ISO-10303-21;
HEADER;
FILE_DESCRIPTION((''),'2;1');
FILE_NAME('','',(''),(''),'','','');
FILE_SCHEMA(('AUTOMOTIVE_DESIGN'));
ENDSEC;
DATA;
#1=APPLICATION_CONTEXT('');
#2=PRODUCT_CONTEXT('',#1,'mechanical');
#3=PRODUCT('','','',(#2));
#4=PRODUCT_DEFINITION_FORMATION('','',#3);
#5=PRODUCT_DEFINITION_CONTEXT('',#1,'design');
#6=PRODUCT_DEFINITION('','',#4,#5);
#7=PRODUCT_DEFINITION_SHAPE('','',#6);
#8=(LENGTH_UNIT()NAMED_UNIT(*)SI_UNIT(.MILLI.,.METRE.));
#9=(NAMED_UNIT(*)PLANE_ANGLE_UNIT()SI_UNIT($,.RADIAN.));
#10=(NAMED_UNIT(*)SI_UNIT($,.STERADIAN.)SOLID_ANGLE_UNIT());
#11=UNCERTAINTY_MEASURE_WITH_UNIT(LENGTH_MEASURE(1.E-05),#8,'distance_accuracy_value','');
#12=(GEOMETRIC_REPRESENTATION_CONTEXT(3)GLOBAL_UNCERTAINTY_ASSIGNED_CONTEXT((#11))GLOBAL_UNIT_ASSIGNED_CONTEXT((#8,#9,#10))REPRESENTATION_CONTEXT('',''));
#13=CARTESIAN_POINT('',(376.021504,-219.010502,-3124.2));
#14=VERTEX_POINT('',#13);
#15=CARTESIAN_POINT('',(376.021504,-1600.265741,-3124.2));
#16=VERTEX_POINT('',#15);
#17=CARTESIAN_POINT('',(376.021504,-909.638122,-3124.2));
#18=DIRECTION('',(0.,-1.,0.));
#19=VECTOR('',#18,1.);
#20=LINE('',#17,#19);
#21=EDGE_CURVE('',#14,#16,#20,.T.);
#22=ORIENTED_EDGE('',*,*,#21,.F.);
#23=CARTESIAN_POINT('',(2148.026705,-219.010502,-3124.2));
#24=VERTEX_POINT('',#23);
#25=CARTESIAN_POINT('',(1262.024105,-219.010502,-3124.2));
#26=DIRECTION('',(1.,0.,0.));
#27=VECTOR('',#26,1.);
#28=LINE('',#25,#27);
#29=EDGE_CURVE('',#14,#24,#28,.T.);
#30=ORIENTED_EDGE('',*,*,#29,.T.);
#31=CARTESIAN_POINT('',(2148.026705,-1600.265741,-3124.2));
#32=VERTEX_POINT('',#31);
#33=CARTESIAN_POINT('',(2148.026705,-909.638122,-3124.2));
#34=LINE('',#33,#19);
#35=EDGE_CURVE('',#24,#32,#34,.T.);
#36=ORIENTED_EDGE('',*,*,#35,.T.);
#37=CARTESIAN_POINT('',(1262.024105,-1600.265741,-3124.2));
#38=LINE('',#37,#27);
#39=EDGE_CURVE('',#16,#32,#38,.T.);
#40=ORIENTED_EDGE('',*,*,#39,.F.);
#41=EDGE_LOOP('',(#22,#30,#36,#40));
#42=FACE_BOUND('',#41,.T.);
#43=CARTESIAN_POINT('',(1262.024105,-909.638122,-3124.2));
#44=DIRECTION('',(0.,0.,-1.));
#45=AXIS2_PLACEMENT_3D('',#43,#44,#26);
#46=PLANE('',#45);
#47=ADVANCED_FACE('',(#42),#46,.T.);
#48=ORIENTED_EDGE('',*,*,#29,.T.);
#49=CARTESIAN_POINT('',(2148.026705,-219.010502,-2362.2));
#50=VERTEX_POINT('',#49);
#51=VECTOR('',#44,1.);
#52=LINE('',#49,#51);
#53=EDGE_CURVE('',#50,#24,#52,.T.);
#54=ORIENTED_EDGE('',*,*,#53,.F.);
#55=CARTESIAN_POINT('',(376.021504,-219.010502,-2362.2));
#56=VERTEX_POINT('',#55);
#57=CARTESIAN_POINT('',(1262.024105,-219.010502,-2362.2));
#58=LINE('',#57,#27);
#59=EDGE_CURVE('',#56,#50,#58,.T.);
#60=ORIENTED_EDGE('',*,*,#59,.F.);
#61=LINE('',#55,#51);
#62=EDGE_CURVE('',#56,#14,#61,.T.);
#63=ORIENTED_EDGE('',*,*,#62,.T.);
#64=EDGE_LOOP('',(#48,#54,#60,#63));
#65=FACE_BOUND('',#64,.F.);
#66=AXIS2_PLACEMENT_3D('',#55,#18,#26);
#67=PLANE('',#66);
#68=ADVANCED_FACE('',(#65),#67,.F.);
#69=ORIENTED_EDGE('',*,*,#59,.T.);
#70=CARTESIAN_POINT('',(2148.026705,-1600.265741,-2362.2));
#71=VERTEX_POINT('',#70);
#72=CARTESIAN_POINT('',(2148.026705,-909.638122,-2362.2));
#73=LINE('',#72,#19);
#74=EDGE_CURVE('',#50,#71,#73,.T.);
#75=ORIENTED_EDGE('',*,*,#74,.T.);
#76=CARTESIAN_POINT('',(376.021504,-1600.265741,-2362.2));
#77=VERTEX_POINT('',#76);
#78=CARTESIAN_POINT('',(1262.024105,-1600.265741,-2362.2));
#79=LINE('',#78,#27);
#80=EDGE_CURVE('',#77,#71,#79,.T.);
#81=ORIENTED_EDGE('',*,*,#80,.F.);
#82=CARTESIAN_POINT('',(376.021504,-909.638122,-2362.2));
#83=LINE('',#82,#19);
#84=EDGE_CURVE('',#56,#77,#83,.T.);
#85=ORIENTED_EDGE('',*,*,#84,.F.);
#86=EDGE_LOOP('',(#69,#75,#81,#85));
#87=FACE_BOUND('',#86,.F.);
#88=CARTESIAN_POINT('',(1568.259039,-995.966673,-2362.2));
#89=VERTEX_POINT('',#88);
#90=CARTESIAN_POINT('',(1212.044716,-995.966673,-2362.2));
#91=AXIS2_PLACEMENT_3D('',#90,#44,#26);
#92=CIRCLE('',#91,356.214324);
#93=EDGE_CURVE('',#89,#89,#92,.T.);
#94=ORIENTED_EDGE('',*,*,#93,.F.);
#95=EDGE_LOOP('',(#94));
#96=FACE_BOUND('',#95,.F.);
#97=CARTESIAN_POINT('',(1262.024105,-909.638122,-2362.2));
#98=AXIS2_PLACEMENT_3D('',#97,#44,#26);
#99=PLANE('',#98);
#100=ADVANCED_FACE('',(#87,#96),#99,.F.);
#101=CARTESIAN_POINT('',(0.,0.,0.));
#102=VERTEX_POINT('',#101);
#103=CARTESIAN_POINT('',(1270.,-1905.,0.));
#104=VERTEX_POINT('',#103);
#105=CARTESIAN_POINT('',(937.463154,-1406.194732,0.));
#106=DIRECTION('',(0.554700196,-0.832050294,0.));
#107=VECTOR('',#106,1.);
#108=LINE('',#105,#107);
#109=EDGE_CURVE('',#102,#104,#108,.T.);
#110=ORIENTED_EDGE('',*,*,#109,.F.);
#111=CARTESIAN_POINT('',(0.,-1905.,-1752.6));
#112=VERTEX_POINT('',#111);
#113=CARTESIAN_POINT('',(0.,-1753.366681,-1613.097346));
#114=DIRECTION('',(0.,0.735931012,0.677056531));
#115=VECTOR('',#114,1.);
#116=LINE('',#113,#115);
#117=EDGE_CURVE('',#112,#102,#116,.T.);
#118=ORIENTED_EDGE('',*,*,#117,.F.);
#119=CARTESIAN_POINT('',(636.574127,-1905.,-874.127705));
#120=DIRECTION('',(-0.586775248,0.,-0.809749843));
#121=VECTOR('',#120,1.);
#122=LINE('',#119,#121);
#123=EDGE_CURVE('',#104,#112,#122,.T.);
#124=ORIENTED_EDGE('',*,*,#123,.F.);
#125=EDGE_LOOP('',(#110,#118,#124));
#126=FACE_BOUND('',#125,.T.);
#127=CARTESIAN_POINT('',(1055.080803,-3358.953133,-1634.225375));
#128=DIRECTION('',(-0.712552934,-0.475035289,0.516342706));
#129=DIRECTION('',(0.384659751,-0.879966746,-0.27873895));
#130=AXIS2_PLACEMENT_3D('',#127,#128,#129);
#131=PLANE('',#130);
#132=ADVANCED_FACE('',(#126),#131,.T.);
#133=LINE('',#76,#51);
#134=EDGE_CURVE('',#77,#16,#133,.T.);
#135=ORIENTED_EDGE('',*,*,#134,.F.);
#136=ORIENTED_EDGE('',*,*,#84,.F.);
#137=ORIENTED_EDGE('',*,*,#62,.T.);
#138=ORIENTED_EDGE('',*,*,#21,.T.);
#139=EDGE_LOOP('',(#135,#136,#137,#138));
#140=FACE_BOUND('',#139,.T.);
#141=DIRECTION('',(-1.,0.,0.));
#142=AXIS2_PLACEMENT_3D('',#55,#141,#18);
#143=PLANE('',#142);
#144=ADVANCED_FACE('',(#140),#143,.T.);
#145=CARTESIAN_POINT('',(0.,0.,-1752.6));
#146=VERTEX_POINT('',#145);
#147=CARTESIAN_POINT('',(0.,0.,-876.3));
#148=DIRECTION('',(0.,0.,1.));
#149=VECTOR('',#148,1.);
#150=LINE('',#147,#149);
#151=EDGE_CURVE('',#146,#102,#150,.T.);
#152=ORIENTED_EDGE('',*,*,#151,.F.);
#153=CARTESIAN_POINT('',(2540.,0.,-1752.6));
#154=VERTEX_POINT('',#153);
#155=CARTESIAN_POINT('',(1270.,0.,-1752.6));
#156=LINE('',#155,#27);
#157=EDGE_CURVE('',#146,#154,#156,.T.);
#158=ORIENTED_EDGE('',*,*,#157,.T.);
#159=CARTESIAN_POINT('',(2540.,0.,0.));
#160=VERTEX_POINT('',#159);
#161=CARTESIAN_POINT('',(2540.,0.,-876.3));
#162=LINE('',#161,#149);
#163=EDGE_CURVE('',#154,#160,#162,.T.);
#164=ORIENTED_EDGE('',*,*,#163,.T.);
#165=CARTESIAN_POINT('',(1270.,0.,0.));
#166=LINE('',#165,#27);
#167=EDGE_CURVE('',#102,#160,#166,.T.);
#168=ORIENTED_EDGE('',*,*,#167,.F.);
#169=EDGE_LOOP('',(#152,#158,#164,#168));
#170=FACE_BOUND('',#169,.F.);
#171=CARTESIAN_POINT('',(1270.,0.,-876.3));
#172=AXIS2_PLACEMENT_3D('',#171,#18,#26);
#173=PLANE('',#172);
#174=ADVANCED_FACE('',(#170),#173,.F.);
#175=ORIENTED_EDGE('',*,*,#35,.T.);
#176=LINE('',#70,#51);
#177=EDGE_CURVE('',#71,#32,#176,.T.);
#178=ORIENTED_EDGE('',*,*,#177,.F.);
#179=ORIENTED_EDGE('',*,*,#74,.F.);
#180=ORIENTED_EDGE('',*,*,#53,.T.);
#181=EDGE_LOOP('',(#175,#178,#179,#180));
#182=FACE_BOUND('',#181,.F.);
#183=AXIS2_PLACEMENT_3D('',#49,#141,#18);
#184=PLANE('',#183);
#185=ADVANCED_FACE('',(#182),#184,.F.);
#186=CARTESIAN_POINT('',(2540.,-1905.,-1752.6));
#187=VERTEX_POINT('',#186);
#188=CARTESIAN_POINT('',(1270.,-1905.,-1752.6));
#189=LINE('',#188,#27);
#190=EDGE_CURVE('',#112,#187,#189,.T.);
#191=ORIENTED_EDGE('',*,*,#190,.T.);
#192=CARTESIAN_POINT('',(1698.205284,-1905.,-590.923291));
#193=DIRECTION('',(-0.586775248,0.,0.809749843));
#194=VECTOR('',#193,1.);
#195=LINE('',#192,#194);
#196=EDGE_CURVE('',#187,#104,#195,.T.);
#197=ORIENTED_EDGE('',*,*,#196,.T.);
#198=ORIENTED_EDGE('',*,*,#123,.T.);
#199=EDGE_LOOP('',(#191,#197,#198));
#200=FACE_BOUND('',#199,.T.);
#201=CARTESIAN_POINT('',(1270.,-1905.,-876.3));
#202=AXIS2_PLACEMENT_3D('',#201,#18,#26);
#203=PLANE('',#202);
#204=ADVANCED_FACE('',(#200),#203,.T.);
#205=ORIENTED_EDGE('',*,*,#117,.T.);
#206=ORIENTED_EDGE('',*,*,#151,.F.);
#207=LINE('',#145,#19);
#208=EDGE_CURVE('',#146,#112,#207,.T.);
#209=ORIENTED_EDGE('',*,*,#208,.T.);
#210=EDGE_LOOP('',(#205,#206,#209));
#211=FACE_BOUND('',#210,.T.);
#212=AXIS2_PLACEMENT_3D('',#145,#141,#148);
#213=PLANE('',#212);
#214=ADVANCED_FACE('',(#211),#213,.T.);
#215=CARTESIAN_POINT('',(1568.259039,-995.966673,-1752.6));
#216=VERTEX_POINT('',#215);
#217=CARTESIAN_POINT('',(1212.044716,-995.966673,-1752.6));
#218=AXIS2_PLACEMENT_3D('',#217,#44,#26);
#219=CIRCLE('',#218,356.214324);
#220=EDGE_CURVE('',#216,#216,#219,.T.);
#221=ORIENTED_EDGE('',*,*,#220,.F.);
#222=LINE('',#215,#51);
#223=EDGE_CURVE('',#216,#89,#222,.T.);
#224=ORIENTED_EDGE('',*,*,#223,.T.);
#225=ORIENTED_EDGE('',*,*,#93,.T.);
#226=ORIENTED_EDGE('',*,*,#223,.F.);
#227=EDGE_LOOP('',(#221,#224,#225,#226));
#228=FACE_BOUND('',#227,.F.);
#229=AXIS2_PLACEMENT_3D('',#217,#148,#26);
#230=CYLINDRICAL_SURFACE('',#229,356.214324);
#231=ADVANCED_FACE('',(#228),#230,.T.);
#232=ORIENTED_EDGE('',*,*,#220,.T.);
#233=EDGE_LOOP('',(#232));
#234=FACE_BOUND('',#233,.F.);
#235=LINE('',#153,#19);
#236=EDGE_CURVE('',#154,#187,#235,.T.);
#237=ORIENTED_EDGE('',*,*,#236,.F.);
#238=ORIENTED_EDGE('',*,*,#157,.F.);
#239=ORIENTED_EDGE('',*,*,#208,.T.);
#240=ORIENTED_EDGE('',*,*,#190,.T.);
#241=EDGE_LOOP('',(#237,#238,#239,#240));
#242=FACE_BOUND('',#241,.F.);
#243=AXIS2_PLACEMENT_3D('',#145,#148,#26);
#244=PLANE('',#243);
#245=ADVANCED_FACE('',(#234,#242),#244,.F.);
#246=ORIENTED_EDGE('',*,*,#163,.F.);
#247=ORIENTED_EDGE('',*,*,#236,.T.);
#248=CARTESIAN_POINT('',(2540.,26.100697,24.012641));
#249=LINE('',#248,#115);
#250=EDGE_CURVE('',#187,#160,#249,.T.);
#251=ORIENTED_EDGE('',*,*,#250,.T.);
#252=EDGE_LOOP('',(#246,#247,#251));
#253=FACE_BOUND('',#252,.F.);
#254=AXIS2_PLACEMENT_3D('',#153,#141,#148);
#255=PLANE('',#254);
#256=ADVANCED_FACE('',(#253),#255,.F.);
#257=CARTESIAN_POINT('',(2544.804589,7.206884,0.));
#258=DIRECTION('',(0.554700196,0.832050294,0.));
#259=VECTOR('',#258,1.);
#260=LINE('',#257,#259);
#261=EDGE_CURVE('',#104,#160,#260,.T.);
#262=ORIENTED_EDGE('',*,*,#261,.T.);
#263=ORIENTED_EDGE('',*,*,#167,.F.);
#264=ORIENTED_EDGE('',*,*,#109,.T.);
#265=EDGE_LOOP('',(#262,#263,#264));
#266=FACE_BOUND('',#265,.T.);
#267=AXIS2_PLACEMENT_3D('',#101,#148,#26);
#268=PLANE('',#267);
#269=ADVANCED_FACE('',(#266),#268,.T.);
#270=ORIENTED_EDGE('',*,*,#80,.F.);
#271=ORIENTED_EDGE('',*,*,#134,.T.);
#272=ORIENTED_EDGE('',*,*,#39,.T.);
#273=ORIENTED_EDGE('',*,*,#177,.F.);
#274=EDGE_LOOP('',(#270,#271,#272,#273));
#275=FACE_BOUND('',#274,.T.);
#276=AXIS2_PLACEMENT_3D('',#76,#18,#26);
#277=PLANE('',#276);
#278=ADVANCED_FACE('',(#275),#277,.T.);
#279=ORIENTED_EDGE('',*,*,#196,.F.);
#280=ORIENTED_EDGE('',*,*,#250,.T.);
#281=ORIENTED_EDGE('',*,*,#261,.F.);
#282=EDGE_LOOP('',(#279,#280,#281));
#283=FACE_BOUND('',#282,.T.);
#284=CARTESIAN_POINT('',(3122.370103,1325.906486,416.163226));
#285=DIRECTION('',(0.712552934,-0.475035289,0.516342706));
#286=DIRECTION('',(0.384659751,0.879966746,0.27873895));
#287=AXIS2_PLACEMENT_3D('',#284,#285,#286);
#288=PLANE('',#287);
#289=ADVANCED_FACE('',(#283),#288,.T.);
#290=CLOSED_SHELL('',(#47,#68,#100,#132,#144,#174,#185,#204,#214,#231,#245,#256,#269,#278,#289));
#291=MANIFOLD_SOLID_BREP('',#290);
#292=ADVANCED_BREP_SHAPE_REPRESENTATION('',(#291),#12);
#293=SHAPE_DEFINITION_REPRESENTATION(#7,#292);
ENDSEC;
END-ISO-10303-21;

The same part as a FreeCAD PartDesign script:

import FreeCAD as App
import Part
import Sketcher
from FreeCAD import Vector
Q = App.Units.Quantity


def add_polygon(sketch, points):
    """Adds a closed chain of lines whose ends are joined by coincident constraints."""
    first, n = sketch.GeometryCount, len(points)
    for a, b in zip(points, points[1:] + points[:1]):
        sketch.addGeometry(Part.LineSegment(App.Vector(*a, 0), App.Vector(*b, 0)), False)
    for i in range(n):
        sketch.addConstraint(Sketcher.Constraint("Coincident", first + i, 2, first + (i + 1) % n, 1))

doc = App.newDocument("Part")
body = doc.addObject("PartDesign::Body", "Body")

sketch1 = body.newObject("Sketcher::SketchObject", "Sketch")
sketch1.AttachmentSupport = (doc.getObject("XZ_Plane"), [""])
sketch1.MapMode = "FlatFace"
add_polygon(sketch1, [(0, 0), (0, -1752.6), (2540, -1752.6), (2540, 0)])
sketch1.addConstraint(Sketcher.Constraint("Vertical", 0))
sketch1.addConstraint(Sketcher.Constraint("Horizontal", 1))
sketch1.addConstraint(Sketcher.Constraint("Vertical", 2))
sketch1.addConstraint(Sketcher.Constraint("Horizontal", 3))
sketch1.addConstraint(Sketcher.Constraint("Coincident", 3, 2, -1, 1))
sketch1.addConstraint(Sketcher.Constraint("DistanceX", 1, 1, 1, 2, Q("100 in")))
sketch1.addConstraint(Sketcher.Constraint("DistanceY", 0, 2, 0, 1, Q("69 in")))
pad1 = body.newObject("PartDesign::Pad", "Pad")
pad1.Profile = sketch1
pad1.Length = Q("75 in")

sketch2 = body.newObject("Sketcher::SketchObject", "Sketch001")
sketch2.Placement = App.Placement(Vector(1289.638477, -859.758985, 934.520636), App.Rotation(Vector(0.384659751, 0.879966746, 0.27873895), Vector(-0.586775248, 0, 0.809749843), Vector(0.712552934, -0.475035289, 0.516342706), "ZXY"))
add_polygon(sketch2, [(3353.716851, 2692.031622), (-3737.085105, 250.38138), (-2471.13514, -4877.214431), (9797.296528, -2905.452967)])
sketch2.addConstraint(Sketcher.Constraint("Distance", 0, 7499.408529))
sketch2.addConstraint(Sketcher.Constraint("Distance", 1, 5281.559251))
sketch2.addConstraint(Sketcher.Constraint("DistanceY", -1, 1, 0, 2, 250.38138))
sketch2.addConstraint(Sketcher.Constraint("DistanceX", 1, 2, -1, 1, 2471.13514))
sketch2.addConstraint(Sketcher.Constraint("DistanceY", 1, 2, -1, 1, 4877.214431))
sketch2.addConstraint(Sketcher.Constraint("DistanceX", -1, 1, 3, 2, 3353.716851))
sketch2.addConstraint(Sketcher.Constraint("DistanceY", 2, 2, 3, 2, 5597.484588))
sketch2.addConstraint(Sketcher.Constraint("Distance", 2, 12425.870547))
pocket1 = body.newObject("PartDesign::Pocket", "Pocket")
pocket1.Profile = sketch2
pocket1.Length = Q("100 in")
pocket1.Reversed = True

sketch3 = body.newObject("Sketcher::SketchObject", "Sketch002")
sketch3.Placement = App.Placement(Vector(0, 0, 0), App.Rotation(Vector(0.384659751, -0.879966746, -0.27873895), Vector(0.586775248, 0, 0.809749843), Vector(-0.712552934, -0.475035289, 0.516342706), "ZXY"))
add_polygon(sketch3, [(6334.898951, 2345.296383), (-1106.892944, 0), (464.375049, -2554.35276), (8031.702998, -2892.791986)])
sketch3.addConstraint(Sketcher.Constraint("PointOnObject", 0, 2, -1))
sketch3.addConstraint(Sketcher.Constraint("DistanceX", -1, 1, 2, 2, 8031.702998))
sketch3.addConstraint(Sketcher.Constraint("DistanceX", 1, 2, 3, 2, 5870.523902))
sketch3.addConstraint(Sketcher.Constraint("Distance", 1, 2998.933332))
sketch3.addConstraint(Sketcher.Constraint("DistanceX", -1, 1, 1, 2, 464.375049))
sketch3.addConstraint(Sketcher.Constraint("DistanceY", 1, 2, -1, 1, 2554.35276))
sketch3.addConstraint(Sketcher.Constraint("DistanceY", 2, 2, 3, 2, 5238.088369))
sketch3.addConstraint(Sketcher.Constraint("Distance", 0, 7802.607367))
pocket2 = body.newObject("PartDesign::Pocket", "Pocket001")
pocket2.Profile = sketch3
pocket2.Length = Q("100 in")
pocket2.Reversed = True

sketch4 = body.newObject("Sketcher::SketchObject", "Sketch003")
sketch4.AttachmentSupport = (doc.getObject("XY_Plane"), [""])
sketch4.MapMode = "FlatFace"
sketch4.AttachmentOffset = App.Placement(Vector(0, 0, -69 * 25.4), App.Rotation())
sketch4.addGeometry(Part.Circle(Vector(1212.044716, -995.966673, 0), Vector(0, 0, 1), 356.214324), False)
sketch4.addConstraint(Sketcher.Constraint("Diameter", 0, 712.428647))
sketch4.addConstraint(Sketcher.Constraint("DistanceX", -1, 1, 0, 3, 1212.044716))
sketch4.addConstraint(Sketcher.Constraint("DistanceY", 0, 3, -1, 1, 995.966673))
pad2 = body.newObject("PartDesign::Pad", "Pad001")
pad2.Profile = sketch4
pad2.Length = Q("24 in")
pad2.Reversed = True

sketch5 = body.newObject("Sketcher::SketchObject", "Sketch004")
sketch5.AttachmentSupport = (doc.getObject("XY_Plane"), [""])
sketch5.MapMode = "FlatFace"
sketch5.AttachmentOffset = App.Placement(Vector(0, 0, -93 * 25.4), App.Rotation())
add_polygon(sketch5, [(376.021504, -1600.265741), (376.021504, -219.010502), (2148.026705, -219.010502), (2148.026705, -1600.265741)])
sketch5.addConstraint(Sketcher.Constraint("Vertical", 0))
sketch5.addConstraint(Sketcher.Constraint("Horizontal", 1))
sketch5.addConstraint(Sketcher.Constraint("Vertical", 2))
sketch5.addConstraint(Sketcher.Constraint("Horizontal", 3))
sketch5.addConstraint(Sketcher.Constraint("DistanceX", 1, 1, 1, 2, 1772.0052))
sketch5.addConstraint(Sketcher.Constraint("DistanceY", 0, 1, 0, 2, 1381.255239))
sketch5.addConstraint(Sketcher.Constraint("DistanceY", 2, 2, -1, 1, 1600.265741))
sketch5.addConstraint(Sketcher.Constraint("DistanceX", -1, 1, 0, 2, 376.021504))
pad3 = body.newObject("PartDesign::Pad", "Pad002")
pad3.Profile = sketch5
pad3.Length = Q("30 in")
pad3.Reversed = True

doc.recompute()
